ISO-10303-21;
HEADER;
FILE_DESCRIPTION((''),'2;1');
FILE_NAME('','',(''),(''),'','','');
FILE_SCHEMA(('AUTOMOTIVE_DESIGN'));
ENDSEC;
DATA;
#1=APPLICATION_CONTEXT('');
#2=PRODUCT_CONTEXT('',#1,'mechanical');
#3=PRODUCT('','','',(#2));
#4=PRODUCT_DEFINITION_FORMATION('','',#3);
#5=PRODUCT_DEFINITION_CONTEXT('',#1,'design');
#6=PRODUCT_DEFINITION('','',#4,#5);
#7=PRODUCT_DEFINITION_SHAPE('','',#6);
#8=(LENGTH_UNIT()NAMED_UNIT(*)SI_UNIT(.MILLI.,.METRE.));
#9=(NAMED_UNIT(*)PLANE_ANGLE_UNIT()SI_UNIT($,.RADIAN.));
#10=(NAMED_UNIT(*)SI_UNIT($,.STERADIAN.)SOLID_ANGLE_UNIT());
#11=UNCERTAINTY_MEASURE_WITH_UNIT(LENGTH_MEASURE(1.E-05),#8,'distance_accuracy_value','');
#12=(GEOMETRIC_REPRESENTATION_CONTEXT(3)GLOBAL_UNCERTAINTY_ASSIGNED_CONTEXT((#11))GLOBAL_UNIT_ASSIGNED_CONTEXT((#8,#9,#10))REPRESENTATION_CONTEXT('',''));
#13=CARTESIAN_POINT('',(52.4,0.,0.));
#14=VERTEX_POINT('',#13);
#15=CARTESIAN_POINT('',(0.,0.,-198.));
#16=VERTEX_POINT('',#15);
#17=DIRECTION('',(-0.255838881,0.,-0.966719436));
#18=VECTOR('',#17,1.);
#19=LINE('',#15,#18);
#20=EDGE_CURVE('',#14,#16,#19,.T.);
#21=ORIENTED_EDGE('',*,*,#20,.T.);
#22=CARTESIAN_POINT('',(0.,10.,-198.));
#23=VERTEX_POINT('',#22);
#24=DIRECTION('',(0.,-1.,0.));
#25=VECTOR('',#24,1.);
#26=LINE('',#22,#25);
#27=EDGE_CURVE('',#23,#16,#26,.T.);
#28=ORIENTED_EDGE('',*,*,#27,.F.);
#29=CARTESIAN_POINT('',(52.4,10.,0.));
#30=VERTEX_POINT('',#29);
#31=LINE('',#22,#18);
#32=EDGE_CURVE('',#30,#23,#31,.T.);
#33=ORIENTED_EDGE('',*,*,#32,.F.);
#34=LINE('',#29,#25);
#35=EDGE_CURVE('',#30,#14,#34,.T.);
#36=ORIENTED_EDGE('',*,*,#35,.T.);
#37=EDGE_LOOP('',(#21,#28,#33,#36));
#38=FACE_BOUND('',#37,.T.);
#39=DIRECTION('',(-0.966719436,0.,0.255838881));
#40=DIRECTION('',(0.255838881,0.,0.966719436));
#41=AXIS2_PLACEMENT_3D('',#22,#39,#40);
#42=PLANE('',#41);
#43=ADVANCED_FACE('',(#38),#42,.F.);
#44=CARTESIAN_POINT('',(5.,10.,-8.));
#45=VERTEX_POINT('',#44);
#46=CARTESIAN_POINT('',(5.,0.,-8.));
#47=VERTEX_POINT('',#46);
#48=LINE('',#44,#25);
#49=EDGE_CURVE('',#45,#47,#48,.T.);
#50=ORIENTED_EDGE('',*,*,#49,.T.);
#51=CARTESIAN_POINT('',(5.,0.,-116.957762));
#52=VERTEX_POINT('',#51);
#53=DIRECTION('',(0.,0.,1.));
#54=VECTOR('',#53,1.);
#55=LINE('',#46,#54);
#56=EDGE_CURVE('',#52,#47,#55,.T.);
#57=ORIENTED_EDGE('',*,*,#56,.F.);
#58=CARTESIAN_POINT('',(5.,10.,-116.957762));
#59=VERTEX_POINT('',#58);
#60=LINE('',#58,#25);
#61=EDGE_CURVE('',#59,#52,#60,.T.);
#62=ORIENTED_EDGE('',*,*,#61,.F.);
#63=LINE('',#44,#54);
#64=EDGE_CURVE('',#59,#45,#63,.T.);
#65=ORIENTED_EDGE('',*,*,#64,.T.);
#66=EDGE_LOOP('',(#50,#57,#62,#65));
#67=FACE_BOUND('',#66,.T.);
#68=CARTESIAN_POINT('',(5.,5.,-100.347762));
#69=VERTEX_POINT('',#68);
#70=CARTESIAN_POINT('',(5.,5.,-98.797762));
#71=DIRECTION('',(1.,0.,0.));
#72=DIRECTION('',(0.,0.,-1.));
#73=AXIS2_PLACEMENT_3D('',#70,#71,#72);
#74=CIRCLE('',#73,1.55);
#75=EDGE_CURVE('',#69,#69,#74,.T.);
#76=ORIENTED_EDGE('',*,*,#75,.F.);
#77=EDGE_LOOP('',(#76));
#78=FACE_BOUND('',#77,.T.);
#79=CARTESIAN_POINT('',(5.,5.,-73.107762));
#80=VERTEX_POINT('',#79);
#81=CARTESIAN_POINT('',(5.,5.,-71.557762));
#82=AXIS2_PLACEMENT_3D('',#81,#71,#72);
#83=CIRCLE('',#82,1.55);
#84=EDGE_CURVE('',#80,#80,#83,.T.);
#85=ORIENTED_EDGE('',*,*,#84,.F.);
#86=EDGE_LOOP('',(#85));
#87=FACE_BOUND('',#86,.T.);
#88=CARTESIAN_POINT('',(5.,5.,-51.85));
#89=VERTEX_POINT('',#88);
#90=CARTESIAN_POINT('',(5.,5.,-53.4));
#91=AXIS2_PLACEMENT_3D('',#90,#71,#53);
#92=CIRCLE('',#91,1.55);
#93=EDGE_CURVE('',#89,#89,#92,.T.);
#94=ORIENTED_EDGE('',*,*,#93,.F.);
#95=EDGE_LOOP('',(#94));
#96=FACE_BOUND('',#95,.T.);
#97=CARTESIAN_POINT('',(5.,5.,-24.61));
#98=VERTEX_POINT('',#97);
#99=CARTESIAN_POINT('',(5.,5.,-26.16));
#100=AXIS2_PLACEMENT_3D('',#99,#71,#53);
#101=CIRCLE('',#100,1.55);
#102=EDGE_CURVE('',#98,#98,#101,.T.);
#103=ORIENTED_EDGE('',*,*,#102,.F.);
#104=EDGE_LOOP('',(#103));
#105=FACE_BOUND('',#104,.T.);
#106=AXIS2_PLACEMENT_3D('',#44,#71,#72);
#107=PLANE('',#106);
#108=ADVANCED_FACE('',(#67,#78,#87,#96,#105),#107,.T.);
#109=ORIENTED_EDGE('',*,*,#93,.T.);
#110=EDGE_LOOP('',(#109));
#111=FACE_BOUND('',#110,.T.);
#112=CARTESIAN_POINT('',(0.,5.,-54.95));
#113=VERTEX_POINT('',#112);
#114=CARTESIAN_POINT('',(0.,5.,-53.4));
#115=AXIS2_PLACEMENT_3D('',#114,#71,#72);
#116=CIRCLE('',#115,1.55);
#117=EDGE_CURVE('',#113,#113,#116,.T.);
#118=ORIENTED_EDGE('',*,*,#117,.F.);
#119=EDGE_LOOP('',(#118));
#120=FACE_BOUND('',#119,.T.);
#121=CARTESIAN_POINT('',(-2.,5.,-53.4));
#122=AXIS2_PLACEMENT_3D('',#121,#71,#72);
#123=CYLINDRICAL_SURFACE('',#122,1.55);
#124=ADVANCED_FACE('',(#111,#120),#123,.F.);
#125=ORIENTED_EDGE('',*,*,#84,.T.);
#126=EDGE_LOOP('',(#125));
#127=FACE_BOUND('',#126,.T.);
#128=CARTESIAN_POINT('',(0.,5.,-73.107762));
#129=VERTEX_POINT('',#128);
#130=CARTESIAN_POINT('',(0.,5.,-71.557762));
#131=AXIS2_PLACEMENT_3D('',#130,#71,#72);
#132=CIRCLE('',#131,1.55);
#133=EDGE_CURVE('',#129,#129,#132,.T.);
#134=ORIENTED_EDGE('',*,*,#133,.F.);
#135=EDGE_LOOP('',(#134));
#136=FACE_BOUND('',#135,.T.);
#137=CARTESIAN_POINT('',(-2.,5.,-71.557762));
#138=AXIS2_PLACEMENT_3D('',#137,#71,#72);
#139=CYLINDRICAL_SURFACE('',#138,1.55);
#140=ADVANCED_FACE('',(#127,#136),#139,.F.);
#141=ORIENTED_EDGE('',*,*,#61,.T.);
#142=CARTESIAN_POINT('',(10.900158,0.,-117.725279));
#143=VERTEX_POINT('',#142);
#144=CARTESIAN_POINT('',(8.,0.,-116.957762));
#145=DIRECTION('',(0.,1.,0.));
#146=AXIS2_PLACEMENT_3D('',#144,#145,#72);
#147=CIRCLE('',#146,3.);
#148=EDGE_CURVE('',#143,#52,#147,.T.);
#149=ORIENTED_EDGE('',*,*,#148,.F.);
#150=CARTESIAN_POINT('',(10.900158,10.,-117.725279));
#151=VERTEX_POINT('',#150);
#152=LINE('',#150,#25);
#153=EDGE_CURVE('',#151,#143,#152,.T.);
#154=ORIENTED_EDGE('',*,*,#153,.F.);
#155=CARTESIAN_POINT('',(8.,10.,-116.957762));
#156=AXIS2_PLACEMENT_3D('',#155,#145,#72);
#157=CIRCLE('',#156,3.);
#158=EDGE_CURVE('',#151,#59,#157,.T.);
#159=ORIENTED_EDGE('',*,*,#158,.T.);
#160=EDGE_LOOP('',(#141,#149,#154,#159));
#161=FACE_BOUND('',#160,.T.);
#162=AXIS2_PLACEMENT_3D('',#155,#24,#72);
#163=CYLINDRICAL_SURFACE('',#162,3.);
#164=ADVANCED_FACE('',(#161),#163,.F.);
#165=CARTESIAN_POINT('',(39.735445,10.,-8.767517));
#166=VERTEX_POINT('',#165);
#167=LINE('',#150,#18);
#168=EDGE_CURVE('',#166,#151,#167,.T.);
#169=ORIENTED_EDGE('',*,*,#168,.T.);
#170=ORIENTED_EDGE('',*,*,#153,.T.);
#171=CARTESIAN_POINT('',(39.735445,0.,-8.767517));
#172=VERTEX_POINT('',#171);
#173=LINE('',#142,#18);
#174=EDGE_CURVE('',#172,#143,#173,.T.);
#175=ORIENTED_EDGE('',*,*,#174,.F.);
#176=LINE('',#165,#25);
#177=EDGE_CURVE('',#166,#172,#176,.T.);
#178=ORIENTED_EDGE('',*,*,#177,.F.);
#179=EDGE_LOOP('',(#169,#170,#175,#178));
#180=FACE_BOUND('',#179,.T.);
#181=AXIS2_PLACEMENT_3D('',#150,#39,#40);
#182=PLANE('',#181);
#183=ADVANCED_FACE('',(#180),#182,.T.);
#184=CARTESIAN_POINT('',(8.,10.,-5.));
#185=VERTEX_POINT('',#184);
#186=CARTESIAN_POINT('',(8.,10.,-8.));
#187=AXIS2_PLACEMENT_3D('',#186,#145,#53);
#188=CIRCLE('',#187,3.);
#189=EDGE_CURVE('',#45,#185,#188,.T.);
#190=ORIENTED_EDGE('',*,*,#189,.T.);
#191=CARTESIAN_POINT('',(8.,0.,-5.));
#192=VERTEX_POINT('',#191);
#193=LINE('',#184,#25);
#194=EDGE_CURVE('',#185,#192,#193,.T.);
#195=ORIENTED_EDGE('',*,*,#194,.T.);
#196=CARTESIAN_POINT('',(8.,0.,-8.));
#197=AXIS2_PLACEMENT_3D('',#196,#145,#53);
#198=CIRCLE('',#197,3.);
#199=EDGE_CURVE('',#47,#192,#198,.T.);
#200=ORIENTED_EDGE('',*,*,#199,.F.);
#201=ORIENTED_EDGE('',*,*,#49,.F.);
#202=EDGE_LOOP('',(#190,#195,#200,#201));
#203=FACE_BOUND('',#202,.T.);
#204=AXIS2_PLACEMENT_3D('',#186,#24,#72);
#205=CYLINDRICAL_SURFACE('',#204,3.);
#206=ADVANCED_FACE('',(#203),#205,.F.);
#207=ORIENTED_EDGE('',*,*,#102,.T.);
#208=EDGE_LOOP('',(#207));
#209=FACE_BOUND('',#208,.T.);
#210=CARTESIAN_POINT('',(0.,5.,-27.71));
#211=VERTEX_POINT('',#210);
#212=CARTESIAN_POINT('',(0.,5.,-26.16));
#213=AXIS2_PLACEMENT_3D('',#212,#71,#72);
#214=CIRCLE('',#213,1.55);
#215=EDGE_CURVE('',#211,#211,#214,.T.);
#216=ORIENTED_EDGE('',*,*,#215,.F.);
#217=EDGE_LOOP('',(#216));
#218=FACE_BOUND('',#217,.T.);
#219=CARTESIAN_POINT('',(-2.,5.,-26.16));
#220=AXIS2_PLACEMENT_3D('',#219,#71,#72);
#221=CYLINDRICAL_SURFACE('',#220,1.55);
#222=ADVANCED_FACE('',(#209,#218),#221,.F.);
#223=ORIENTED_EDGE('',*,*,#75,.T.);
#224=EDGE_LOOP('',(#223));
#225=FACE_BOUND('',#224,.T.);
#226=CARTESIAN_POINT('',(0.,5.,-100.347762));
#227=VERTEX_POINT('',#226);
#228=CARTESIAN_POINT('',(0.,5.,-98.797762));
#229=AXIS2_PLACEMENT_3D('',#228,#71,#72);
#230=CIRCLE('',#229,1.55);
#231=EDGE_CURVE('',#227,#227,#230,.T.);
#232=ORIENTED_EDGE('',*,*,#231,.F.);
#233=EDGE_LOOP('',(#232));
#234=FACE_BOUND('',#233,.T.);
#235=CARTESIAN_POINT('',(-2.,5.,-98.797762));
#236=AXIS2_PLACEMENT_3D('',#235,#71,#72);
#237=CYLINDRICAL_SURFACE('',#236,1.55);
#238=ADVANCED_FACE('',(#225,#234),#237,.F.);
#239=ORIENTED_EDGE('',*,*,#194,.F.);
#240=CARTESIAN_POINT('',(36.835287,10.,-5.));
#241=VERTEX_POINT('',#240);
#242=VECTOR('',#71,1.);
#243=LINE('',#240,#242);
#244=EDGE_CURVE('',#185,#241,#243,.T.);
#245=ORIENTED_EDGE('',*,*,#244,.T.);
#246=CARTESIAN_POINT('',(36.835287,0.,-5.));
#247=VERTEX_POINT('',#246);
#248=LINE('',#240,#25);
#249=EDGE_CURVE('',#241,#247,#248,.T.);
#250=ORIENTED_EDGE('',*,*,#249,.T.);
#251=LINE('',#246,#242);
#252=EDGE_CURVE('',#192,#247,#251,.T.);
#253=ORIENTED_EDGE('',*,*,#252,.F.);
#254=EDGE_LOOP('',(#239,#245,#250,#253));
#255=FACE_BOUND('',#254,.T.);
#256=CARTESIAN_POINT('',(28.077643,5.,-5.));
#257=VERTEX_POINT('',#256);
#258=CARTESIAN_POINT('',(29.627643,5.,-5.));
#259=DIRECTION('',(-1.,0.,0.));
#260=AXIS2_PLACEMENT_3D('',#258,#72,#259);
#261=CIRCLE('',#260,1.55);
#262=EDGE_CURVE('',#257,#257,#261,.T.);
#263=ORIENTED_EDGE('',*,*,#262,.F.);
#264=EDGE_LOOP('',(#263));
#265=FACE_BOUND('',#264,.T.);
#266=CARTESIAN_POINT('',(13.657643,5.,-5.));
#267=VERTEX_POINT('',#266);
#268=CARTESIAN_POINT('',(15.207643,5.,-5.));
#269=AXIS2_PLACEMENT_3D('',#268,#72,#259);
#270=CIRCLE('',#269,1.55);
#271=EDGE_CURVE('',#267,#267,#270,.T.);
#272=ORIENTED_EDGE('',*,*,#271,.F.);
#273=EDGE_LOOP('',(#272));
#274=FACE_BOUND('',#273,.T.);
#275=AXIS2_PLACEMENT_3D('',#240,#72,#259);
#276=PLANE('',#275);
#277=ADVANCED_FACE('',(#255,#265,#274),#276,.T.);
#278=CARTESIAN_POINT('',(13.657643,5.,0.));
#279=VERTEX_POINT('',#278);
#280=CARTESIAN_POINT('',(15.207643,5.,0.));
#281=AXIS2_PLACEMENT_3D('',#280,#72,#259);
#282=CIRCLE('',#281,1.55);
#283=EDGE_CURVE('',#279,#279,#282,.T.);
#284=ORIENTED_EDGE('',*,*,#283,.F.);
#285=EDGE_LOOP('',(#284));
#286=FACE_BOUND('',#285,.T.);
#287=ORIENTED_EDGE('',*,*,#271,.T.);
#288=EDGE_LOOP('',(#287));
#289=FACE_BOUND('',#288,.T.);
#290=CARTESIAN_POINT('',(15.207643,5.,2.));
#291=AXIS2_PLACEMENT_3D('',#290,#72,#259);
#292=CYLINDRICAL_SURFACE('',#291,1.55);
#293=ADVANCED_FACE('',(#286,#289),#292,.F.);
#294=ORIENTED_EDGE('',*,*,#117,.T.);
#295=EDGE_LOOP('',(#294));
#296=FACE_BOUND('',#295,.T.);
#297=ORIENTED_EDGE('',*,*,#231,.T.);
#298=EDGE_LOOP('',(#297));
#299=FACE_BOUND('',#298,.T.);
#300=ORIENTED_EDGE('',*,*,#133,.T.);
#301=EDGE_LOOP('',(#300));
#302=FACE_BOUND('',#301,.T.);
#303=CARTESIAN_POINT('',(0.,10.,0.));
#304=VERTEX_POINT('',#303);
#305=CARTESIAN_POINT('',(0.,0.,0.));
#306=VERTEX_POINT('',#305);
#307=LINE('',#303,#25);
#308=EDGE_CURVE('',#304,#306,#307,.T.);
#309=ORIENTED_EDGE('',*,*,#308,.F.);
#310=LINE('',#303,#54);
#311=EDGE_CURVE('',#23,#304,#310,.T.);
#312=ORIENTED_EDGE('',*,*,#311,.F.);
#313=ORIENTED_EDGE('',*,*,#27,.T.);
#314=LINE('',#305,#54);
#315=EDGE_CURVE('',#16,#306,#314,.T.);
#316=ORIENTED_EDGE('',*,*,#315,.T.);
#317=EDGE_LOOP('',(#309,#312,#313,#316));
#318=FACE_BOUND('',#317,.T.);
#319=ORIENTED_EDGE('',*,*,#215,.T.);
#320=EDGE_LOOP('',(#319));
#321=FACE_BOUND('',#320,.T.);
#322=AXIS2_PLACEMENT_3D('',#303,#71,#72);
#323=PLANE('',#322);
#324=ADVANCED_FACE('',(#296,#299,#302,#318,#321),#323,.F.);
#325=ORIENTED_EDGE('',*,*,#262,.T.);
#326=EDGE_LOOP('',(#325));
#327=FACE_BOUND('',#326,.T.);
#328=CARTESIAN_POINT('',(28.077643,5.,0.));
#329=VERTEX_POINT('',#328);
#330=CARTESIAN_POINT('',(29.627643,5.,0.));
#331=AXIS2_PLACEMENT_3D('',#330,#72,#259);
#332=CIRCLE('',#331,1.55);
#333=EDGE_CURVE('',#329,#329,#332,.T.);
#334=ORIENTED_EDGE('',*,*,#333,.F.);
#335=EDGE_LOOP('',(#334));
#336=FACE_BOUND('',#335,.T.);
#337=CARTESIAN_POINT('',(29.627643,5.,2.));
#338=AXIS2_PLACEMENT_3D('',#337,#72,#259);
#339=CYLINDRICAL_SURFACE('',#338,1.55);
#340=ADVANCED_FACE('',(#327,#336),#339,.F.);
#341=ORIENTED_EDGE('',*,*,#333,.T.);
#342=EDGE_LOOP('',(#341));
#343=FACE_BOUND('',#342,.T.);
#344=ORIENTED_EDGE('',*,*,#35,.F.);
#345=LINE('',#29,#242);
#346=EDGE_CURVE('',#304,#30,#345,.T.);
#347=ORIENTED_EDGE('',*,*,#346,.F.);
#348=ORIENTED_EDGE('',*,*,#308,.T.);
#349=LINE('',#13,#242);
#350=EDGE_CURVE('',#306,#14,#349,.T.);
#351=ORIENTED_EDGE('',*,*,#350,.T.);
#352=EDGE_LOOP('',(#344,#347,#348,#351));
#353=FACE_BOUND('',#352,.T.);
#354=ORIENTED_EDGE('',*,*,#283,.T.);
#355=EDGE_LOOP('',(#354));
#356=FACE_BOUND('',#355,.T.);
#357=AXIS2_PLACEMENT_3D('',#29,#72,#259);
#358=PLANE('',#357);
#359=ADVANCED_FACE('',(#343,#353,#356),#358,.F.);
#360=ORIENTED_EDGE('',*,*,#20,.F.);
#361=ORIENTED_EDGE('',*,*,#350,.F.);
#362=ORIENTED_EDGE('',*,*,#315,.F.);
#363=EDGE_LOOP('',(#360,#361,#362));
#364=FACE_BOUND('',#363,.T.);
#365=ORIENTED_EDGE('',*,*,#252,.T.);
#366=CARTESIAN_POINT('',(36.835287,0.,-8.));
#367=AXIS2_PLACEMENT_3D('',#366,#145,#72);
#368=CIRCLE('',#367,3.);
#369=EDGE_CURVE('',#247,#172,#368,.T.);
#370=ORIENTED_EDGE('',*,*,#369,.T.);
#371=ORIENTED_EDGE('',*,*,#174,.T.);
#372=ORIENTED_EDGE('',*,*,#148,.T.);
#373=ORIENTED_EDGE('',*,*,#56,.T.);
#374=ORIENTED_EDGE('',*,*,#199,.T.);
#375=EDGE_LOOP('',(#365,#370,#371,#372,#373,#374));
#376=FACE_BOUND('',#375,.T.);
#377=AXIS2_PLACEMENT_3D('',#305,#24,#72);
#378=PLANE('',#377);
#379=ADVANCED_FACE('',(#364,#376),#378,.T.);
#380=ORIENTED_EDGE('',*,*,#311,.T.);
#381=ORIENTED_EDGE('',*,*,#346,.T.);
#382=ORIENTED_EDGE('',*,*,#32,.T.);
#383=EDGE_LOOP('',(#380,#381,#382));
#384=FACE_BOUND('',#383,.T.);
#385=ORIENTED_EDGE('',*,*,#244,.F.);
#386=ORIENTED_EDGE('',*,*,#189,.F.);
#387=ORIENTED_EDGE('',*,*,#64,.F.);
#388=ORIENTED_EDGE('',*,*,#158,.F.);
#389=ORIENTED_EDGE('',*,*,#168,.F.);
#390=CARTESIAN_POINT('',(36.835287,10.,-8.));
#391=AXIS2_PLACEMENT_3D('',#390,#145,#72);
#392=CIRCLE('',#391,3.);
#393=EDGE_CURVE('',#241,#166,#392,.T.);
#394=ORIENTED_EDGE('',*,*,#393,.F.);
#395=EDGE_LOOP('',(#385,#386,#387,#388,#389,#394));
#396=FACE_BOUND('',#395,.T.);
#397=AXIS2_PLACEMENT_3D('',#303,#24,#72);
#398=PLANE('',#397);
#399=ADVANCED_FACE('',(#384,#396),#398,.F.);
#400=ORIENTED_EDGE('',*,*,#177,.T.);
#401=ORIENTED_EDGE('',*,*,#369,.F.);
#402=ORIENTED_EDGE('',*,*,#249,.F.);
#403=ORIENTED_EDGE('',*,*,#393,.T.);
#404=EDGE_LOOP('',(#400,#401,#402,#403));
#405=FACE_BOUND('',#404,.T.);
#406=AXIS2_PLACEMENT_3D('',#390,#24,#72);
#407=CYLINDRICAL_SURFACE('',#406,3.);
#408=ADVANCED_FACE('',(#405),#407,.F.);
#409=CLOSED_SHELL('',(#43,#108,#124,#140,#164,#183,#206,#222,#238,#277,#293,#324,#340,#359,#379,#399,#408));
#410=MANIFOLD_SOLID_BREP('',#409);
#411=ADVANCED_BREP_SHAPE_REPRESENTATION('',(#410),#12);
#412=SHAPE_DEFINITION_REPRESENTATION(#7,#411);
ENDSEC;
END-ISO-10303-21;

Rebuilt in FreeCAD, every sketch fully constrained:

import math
import FreeCAD as App
import Part
import Sketcher

doc = App.newDocument("Part")
body = doc.addObject("PartDesign::Body", "Body")

# Sketch on XZ plane
sketch1 = body.newObject("Sketcher::SketchObject", "Sketch")
sketch1.AttachmentSupport = (doc.getObject("XZ_Plane"), [""])
sketch1.MapMode = "FlatFace"
sketch1.addGeometry(Part.LineSegment(App.Vector(0, -198, 0), App.Vector(0, 0, 0)), False)
sketch1.addGeometry(Part.LineSegment(App.Vector(0, 0, 0), App.Vector(52.4, 0, 0)), False)
sketch1.addGeometry(Part.LineSegment(App.Vector(52.4, 0, 0), App.Vector(0, -198, 0)), False)
sketch1.addGeometry(Part.LineSegment(App.Vector(5, -8, 0), App.Vector(5, -117, 0)), False)
sketch1.addGeometry(Part.ArcOfCircle(Part.Circle(App.Vector(8, -117, 0), App.Vector(0, 0, 1), 3), math.radians(180), math.radians(345)), False)
sketch1.addGeometry(Part.LineSegment(App.Vector(10.9, -117.7, 0), App.Vector(39.7, -8.8, 0)), False)
sketch1.addGeometry(Part.ArcOfCircle(Part.Circle(App.Vector(36.8, -8, 0), App.Vector(0, 0, 1), 3), math.radians(-15), math.radians(90)), False)
sketch1.addGeometry(Part.LineSegment(App.Vector(36.8, -5, 0), App.Vector(8, -5, 0)), False)
sketch1.addGeometry(Part.ArcOfCircle(Part.Circle(App.Vector(8, -8, 0), App.Vector(0, 0, 1), 3), math.radians(90), math.radians(180)), False)
sketch1.addConstraint(Sketcher.Constraint("Coincident", 0, 2, 1, 1))
sketch1.addConstraint(Sketcher.Constraint("Coincident", 1, 2, 2, 1))
sketch1.addConstraint(Sketcher.Constraint("Coincident", 2, 2, 0, 1))
sketch1.addConstraint(Sketcher.Constraint("Tangent", 3, 2, 4, 1))
sketch1.addConstraint(Sketcher.Constraint("Tangent", 4, 2, 5, 1))
sketch1.addConstraint(Sketcher.Constraint("Tangent", 5, 2, 6, 1))
sketch1.addConstraint(Sketcher.Constraint("Tangent", 6, 2, 7, 1))
sketch1.addConstraint(Sketcher.Constraint("Tangent", 7, 2, 8, 1))
sketch1.addConstraint(Sketcher.Constraint("Tangent", 8, 2, 3, 1))
sketch1.addConstraint(Sketcher.Constraint("Vertical", 0))
sketch1.addConstraint(Sketcher.Constraint("Horizontal", 1))
sketch1.addConstraint(Sketcher.Constraint("Vertical", 3))
sketch1.addConstraint(Sketcher.Constraint("Horizontal", 7))
sketch1.addConstraint(Sketcher.Constraint("Coincident", 0, 2, -1, 1))
sketch1.addConstraint(Sketcher.Constraint("Equal", 4, 6))
sketch1.addConstraint(Sketcher.Constraint("Equal", 6, 8))
sketch1.addConstraint(Sketcher.Constraint("Parallel", 2, 5))
sketch1.addConstraint(Sketcher.Constraint("Radius", 4, 3.0))
sketch1.addConstraint(Sketcher.Constraint("DistanceY", 0, 1, 0, 2, 198.0))
sketch1.addConstraint(Sketcher.Constraint("DistanceX", 1, 1, 1, 2, 52.4))
sketch1.addConstraint(Sketcher.Constraint("DistanceX", -1, 1, 4, 3, 8.0))
sketch1.addConstraint(Sketcher.Constraint("DistanceY", 6, 3, -1, 1, 8.0))
sketch1.addConstraint(Sketcher.Constraint("DistanceY", 3, 2, 3, 1, 108.957762))
pad1 = body.newObject("PartDesign::Pad", "Pad")
pad1.Profile = sketch1
pad1.Length = 10
pad1.Reversed = True

# Sketch on XY plane
sketch2 = body.newObject("Sketcher::SketchObject", "Sketch001")
sketch2.AttachmentSupport = (doc.getObject("XY_Plane"), [""])
sketch2.MapMode = "FlatFace"
sketch2.AttachmentOffset = App.Placement(App.Vector(0, 0, -5), App.Rotation())
sketch2.addGeometry(Part.Circle(App.Vector(15.2, 5, 0), App.Vector(0, 0, 1), 1.6), False)
sketch2.addGeometry(Part.Circle(App.Vector(29.6, 5, 0), App.Vector(0, 0, 1), 1.6), False)
sketch2.addConstraint(Sketcher.Constraint("Equal", 0, 1))
sketch2.addConstraint(Sketcher.Constraint("Horizontal", 0, 3, 1, 3))
sketch2.addConstraint(Sketcher.Constraint("Diameter", 0, 3.1))
sketch2.addConstraint(Sketcher.Constraint("DistanceY", -1, 1, 0, 3, 5.0))
sketch2.addConstraint(Sketcher.Constraint("DistanceX", 0, 3, 1, 3, 14.42))
sketch2.addConstraint(Sketcher.Constraint("DistanceX", -1, 1, 0, 3, 15.207643))
pocket1 = body.newObject("PartDesign::Pocket", "Pocket")
pocket1.Profile = sketch2
pocket1.Length = 7
pocket1.Reversed = True

# Sketch on YZ plane
sketch3 = body.newObject("Sketcher::SketchObject", "Sketch002")
sketch3.AttachmentSupport = (doc.getObject("YZ_Plane"), [""])
sketch3.MapMode = "FlatFace"
sketch3.AttachmentOffset = App.Placement(App.Vector(0, 0, 5), App.Rotation())
sketch3.addGeometry(Part.Circle(App.Vector(5, -98.8, 0), App.Vector(0, 0, 1), 1.6), False)
sketch3.addGeometry(Part.Circle(App.Vector(5, -71.6, 0), App.Vector(0, 0, 1), 1.6), False)
sketch3.addGeometry(Part.Circle(App.Vector(5, -53.4, 0), App.Vector(0, 0, 1), 1.6), False)
sketch3.addGeometry(Part.Circle(App.Vector(5, -26.2, 0), App.Vector(0, 0, 1), 1.6), False)
sketch3.addConstraint(Sketcher.Constraint("Equal", 0, 1))
sketch3.addConstraint(Sketcher.Constraint("Equal", 1, 2))
sketch3.addConstraint(Sketcher.Constraint("Equal", 2, 3))
sketch3.addConstraint(Sketcher.Constraint("Vertical", 0, 3, 1, 3))
sketch3.addConstraint(Sketcher.Constraint("Vertical", 1, 3, 2, 3))
sketch3.addConstraint(Sketcher.Constraint("Vertical", 2, 3, 3, 3))
sketch3.addConstraint(Sketcher.Constraint("Diameter", 0, 3.1))
sketch3.addConstraint(Sketcher.Constraint("DistanceX", -1, 1, 0, 3, 5.0))
sketch3.addConstraint(Sketcher.Constraint("DistanceY", 2, 3, -1, 1, 53.4))
sketch3.addConstraint(Sketcher.Constraint("DistanceY", 3, 3, -1, 1, 26.16))
sketch3.addConstraint(Sketcher.Constraint("DistanceY", 0, 3, 1, 3, 27.24))
sketch3.addConstraint(Sketcher.Constraint("DistanceY", 0, 3, -1, 1, 98.797762))
pocket2 = body.newObject("PartDesign::Pocket", "Pocket001")
pocket2.Profile = sketch3
pocket2.Length = 7

doc.recompute()
